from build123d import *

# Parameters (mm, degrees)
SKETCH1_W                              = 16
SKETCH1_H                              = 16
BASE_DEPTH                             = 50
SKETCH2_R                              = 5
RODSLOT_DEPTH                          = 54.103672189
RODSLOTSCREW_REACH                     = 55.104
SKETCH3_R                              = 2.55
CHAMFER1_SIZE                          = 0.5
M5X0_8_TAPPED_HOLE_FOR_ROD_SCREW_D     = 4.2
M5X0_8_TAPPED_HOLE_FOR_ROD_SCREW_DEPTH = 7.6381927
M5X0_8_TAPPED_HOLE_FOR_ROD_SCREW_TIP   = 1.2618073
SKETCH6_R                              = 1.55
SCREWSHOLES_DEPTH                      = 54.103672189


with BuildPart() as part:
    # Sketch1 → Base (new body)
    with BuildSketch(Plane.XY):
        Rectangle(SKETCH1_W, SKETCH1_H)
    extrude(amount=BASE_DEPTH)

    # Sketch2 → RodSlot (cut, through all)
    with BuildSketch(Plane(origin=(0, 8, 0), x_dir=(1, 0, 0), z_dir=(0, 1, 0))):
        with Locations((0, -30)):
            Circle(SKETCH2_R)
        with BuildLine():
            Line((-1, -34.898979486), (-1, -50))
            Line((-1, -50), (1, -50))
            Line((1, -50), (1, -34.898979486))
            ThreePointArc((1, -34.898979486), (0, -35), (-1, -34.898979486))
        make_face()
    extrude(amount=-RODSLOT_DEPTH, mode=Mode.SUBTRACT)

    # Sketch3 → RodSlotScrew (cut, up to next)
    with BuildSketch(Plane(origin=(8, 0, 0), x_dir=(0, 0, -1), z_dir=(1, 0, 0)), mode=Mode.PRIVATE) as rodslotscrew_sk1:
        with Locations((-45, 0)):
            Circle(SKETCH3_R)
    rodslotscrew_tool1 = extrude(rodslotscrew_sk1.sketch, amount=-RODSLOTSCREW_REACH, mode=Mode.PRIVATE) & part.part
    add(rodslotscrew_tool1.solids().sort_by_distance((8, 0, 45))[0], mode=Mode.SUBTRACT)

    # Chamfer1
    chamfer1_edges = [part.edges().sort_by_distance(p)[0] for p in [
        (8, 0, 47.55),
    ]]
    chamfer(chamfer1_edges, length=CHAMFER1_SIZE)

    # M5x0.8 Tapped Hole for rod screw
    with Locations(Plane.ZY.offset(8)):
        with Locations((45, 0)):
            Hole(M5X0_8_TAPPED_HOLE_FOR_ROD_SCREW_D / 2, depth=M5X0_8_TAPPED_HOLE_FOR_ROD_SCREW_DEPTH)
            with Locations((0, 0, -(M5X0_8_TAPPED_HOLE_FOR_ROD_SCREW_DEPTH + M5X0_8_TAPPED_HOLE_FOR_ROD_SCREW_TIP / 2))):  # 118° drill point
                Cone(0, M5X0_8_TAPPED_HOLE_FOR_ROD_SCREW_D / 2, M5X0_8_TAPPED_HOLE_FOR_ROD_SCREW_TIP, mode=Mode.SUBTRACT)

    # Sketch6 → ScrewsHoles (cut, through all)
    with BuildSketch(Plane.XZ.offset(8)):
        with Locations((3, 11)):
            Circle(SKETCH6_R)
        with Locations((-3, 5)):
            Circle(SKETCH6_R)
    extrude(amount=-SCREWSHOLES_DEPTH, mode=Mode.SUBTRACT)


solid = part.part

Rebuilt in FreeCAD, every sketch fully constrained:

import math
import FreeCAD as App
import Part
import Sketcher
Q = App.Units.Quantity


def edges_at(feature, points):
    """Names of the edges that pass closest to the given points."""
    edges = feature.Shape.Edges
    near = lambda p: min(range(len(edges)), key=lambda i: edges[i].distToShape(Part.Vertex(*p))[0])
    return sorted({f"Edge{near(p) + 1}" for p in points})

doc = App.newDocument("Part")
params = doc.addObject("Spreadsheet::Sheet", "Params")
for row, (alias, value) in enumerate([
    ("sketch1_width", "16 mm"),
    ("pad1_length", "50 mm"),
    ("sketch2_radius", "5 mm"),
    ("sketch2_width", "2 mm"),
    ("sketch3_diameter", "5.1 mm"),
    ("chamfer_size", "0.5 mm"),
    ("sketch4_diameter", "4.2 mm"),
    ("hole_diameter", "4.2 mm"),
    ("hole_depth", "7.638193 mm"),
    ("sketch5_diameter", "3.1 mm"),
], start=1):
    params.set(f"A{row}", alias)
    params.set(f"B{row}", "=" + value)
    params.setAlias(f"B{row}", alias)

body = doc.addObject("PartDesign::Body", "Body")

# Sketch on XY plane
sketch1 = body.newObject("Sketcher::SketchObject", "Sketch")
sketch1.AttachmentSupport = (doc.getObject("XY_Plane"), [""])
sketch1.MapMode = "FlatFace"
sketch1.addGeometry([
    Part.LineSegment(App.Vector(-8, 8, 0), App.Vector(-8, -8, 0)),
    Part.LineSegment(App.Vector(-8, -8, 0), App.Vector(8, -8, 0)),
    Part.LineSegment(App.Vector(8, -8, 0), App.Vector(8, 8, 0)),
    Part.LineSegment(App.Vector(8, 8, 0), App.Vector(-8, 8, 0)),
], False)
sketch1.addConstraint([
    Sketcher.Constraint("Coincident", 0, 2, 1, 1),
    Sketcher.Constraint("Coincident", 1, 2, 2, 1),
    Sketcher.Constraint("Coincident", 2, 2, 3, 1),
    Sketcher.Constraint("Coincident", 3, 2, 0, 1),
    Sketcher.Constraint("Vertical", 0),
    Sketcher.Constraint("Horizontal", 1),
    Sketcher.Constraint("Vertical", 2),
    Sketcher.Constraint("Horizontal", 3),
    Sketcher.Constraint("Symmetric", 0, 2, 2, 2, -1, 1),
    Sketcher.Constraint("Equal", 3, 0),
    Sketcher.Constraint("DistanceX", 1, 1, 1, 2, Q("16 mm")),
])
sketch1.setExpression("Constraints[10]", "Params.sketch1_width")
pad1 = body.newObject("PartDesign::Pad", "Pad")
pad1.Profile = sketch1
pad1.setExpression("Length", "Params.pad1_length")

# Sketch on XZ plane
sketch2 = body.newObject("Sketcher::SketchObject", "Sketch001")
sketch2.AttachmentSupport = (doc.getObject("XZ_Plane"), [""])
sketch2.MapMode = "FlatFace"
sketch2.AttachmentOffset = App.Placement(App.Vector(0, 0, -8), App.Rotation())
sketch2.addGeometry([
    Part.LineSegment(App.Vector(-1, 34.9, 0), App.Vector(-1, 50, 0)),
    Part.LineSegment(App.Vector(-1, 50, 0), App.Vector(1, 50, 0)),
    Part.LineSegment(App.Vector(1, 50, 0), App.Vector(1, 34.9, 0)),
    Part.ArcOfCircle(Part.Circle(App.Vector(0, 30, 0), App.Vector(0, 0, 1), 5), math.radians(102), math.radians(438)),
], False)
sketch2.addConstraint([
    Sketcher.Constraint("Coincident", 0, 2, 1, 1),
    Sketcher.Constraint("Coincident", 1, 2, 2, 1),
    Sketcher.Constraint("Coincident", 2, 2, 3, 2),
    Sketcher.Constraint("Coincident", 3, 1, 0, 1),
    Sketcher.Constraint("Vertical", 0),
    Sketcher.Constraint("Horizontal", 1),
    Sketcher.Constraint("Vertical", 2),
    Sketcher.Constraint("Symmetric", 2, 2, 3, 1, -2),
    Sketcher.Constraint("Radius", 3, Q("5 mm")),
    Sketcher.Constraint("DistanceX", 1, 1, 1, 2, Q("2 mm")),
    Sketcher.Constraint("DistanceY", -1, 1, 3, 3, Q("30 mm")),
    Sketcher.Constraint("DistanceY", -1, 1, 0, 2, Q("50 mm")),
])
sketch2.setExpression("Constraints[8]", "Params.sketch2_radius")
sketch2.setExpression("Constraints[9]", "Params.sketch2_width")
pocket1 = body.newObject("PartDesign::Pocket", "Pocket")
pocket1.Profile = sketch2
pocket1.Type = "ThroughAll"
pocket1.Reversed = True

# Sketch on YZ plane
sketch3 = body.newObject("Sketcher::SketchObject", "Sketch002")
sketch3.AttachmentSupport = (doc.getObject("YZ_Plane"), [""])
sketch3.MapMode = "FlatFace"
sketch3.AttachmentOffset = App.Placement(App.Vector(0, 0, 8), App.Rotation())
sketch3.addGeometry(Part.Circle(App.Vector(0, 45, 0), App.Vector(0, 0, 1), 2.5), False)
sketch3.addConstraint([
    Sketcher.Constraint("PointOnObject", 0, 3, -2),
    Sketcher.Constraint("Diameter", 0, Q("5.1 mm")),
    Sketcher.Constraint("DistanceY", -1, 1, 0, 3, Q("45 mm")),
])
sketch3.setExpression("Constraints[1]", "Params.sketch3_diameter")
pocket2 = body.newObject("PartDesign::Pocket", "Pocket001")
pocket2.Profile = sketch3
pocket2.Type = "UpToFirst"
doc.recompute()

chamfer = body.newObject("PartDesign::Chamfer", "Chamfer")
chamfer.Base = (pocket2, edges_at(pocket2, [(8, 0, 47.55)]))
chamfer.setExpression("Size", "Params.chamfer_size")

# Sketch on YZ plane
sketch4 = body.newObject("Sketcher::SketchObject", "Sketch003")
sketch4.AttachmentSupport = (doc.getObject("YZ_Plane"), [""])
sketch4.MapMode = "FlatFace"
sketch4.AttachmentOffset = App.Placement(App.Vector(0, 0, -8), App.Rotation())
sketch4.addGeometry(Part.Circle(App.Vector(0, 45, 0), App.Vector(0, 0, 1), 2.1), False)
sketch4.addConstraint([
    Sketcher.Constraint("PointOnObject", 0, 3, -2),
    Sketcher.Constraint("Diameter", 0, Q("4.2 mm")),
    Sketcher.Constraint("DistanceY", -1, 1, 0, 3, Q("45 mm")),
])
sketch4.setExpression("Constraints[1]", "Params.sketch4_diameter")
doc.recompute()
hole = body.newObject("PartDesign::Hole", "Hole")
hole.Profile = sketch4
hole.ThreadType = "None"
hole.setExpression("Diameter", "Params.hole_diameter")
hole.DepthType = "Dimension"
hole.setExpression("Depth", "Params.hole_depth")
hole.DrillPoint = "Angled"
hole.DrillPointAngle = 118
hole.Reversed = True

# Sketch on XZ plane
sketch5 = body.newObject("Sketcher::SketchObject", "Sketch004")
sketch5.AttachmentSupport = (doc.getObject("XZ_Plane"), [""])
sketch5.MapMode = "FlatFace"
sketch5.AttachmentOffset = App.Placement(App.Vector(0, 0, 8), App.Rotation())
sketch5.addGeometry([
    Part.Circle(App.Vector(3, 11, 0), App.Vector(0, 0, 1), 1.6),
    Part.Circle(App.Vector(-3, 5, 0), App.Vector(0, 0, 1), 1.6),
], False)
sketch5.addConstraint([
    Sketcher.Constraint("Equal", 0, 1),
    Sketcher.Constraint("Diameter", 0, Q("3.1 mm")),
    Sketcher.Constraint("DistanceX", -1, 1, 0, 3, Q("3 mm")),
    Sketcher.Constraint("DistanceY", -1, 1, 0, 3, Q("11 mm")),
    Sketcher.Constraint("DistanceX", 1, 3, -1, 1, Q("3 mm")),
    Sketcher.Constraint("DistanceY", -1, 1, 1, 3, Q("5 mm")),
])
sketch5.setExpression("Constraints[1]", "Params.sketch5_diameter")
pocket3 = body.newObject("PartDesign::Pocket", "Pocket002")
pocket3.Profile = sketch5
pocket3.Type = "ThroughAll"

doc.recompute()
